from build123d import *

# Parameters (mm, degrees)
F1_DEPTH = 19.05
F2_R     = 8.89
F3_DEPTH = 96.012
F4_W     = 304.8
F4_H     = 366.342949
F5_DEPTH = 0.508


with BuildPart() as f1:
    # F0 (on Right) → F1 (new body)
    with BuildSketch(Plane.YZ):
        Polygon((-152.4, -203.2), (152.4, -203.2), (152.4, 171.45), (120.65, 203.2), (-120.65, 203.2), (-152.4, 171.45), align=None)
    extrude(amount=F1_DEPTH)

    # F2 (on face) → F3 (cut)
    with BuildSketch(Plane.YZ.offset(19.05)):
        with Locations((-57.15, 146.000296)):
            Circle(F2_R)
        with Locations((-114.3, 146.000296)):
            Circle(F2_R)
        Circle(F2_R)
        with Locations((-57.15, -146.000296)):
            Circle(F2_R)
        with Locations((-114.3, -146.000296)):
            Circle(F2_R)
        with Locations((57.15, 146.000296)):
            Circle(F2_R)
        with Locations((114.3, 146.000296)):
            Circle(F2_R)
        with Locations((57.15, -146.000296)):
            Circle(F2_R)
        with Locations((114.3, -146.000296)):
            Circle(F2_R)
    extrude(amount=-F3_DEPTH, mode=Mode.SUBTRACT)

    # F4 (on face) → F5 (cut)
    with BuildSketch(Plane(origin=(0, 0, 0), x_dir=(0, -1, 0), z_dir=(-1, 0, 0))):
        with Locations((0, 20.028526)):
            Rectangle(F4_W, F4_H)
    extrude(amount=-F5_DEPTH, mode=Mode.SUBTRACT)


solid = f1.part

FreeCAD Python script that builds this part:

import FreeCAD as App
import Part
import Sketcher
from FreeCAD import Vector
Q = App.Units.Quantity

doc = App.newDocument("Part")
body = doc.addObject("PartDesign::Body", "Body")

# Sketch on YZ plane
sketch1 = body.newObject("Sketcher::SketchObject", "Sketch")
sketch1.AttachmentSupport = (doc.getObject("YZ_Plane"), [""])
sketch1.MapMode = "FlatFace"
sketch1.addGeometry([
    Part.LineSegment(Vector(-152.4, -203.2, 0), Vector(152.4, -203.2, 0)),  # 0
    Part.LineSegment(Vector(152.4, -203.2, 0), Vector(152.4, 171.45, 0)),  # 1
    Part.LineSegment(Vector(152.4, 171.45, 0), Vector(120.65, 203.2, 0)),  # 2
    Part.LineSegment(Vector(120.65, 203.2, 0), Vector(-120.65, 203.2, 0)),  # 3
    Part.LineSegment(Vector(-120.65, 203.2, 0), Vector(-152.4, 171.45, 0)),  # 4
    Part.LineSegment(Vector(-152.4, 171.45, 0), Vector(-152.4, -203.2, 0)),  # 5
], False)
sketch1.addConstraint([
    Sketcher.Constraint("Coincident", 0, 2, 1, 1),
    Sketcher.Constraint("Coincident", 1, 2, 2, 1),
    Sketcher.Constraint("Coincident", 2, 2, 3, 1),
    Sketcher.Constraint("Coincident", 3, 2, 4, 1),
    Sketcher.Constraint("Coincident", 4, 2, 5, 1),
    Sketcher.Constraint("Coincident", 5, 2, 0, 1),
    Sketcher.Constraint("Horizontal", 0),
    Sketcher.Constraint("Vertical", 1),
    Sketcher.Constraint("Horizontal", 3),
    Sketcher.Constraint("Vertical", 5),
    Sketcher.Constraint("Symmetric", 1, 2, 4, 2, -2),
    Sketcher.Constraint("Perpendicular", 2, 4),
    Sketcher.Constraint("Equal", 2, 4),
    Sketcher.Constraint("DistanceX", 0, 1, 0, 2, Q("12 in")),
    Sketcher.Constraint("DistanceX", 3, 2, 3, 1, Q("9.5 in")),
    Sketcher.Constraint("DistanceY", 0, 2, -1, 1, Q("8 in")),
    Sketcher.Constraint("DistanceY", -1, 1, 2, 2, Q("8 in")),
])
pad1 = body.newObject("PartDesign::Pad", "Pad")
pad1.Profile = sketch1
pad1.Length = Q("0.75 in")

# Sketch on YZ plane
sketch2 = body.newObject("Sketcher::SketchObject", "Sketch001")
sketch2.AttachmentSupport = (doc.getObject("YZ_Plane"), [""])
sketch2.MapMode = "FlatFace"
sketch2.AttachmentOffset = App.Placement(Vector(0, 0, 0.75 * 25.4), App.Rotation())
sketch2.addGeometry([
    Part.Circle(Vector(-57.15, 146.000296, 0), Vector(0, 0, 1), 8.89),  # 0
    Part.Circle(Vector(-114.3, 146.000296, 0), Vector(0, 0, 1), 8.89),  # 1
    Part.Circle(Vector(0, 0, 0), Vector(0, 0, 1), 8.89),  # 2
    Part.Circle(Vector(-57.15, -146.000296, 0), Vector(0, 0, 1), 8.89),  # 3
    Part.Circle(Vector(-114.3, -146.000296, 0), Vector(0, 0, 1), 8.89),  # 4
    Part.Circle(Vector(57.15, 146.000296, 0), Vector(0, 0, 1), 8.89),  # 5
    Part.Circle(Vector(114.3, 146.000296, 0), Vector(0, 0, 1), 8.89),  # 6
    Part.Circle(Vector(57.15, -146.000296, 0), Vector(0, 0, 1), 8.89),  # 7
    Part.Circle(Vector(114.3, -146.000296, 0), Vector(0, 0, 1), 8.89),  # 8
], False)
sketch2.addConstraint([
    Sketcher.Constraint("Coincident", 2, 3, -1, 1),
    Sketcher.Constraint("Equal", 0, 1),
    Sketcher.Constraint("Equal", 1, 2),
    Sketcher.Constraint("Equal", 2, 3),
    Sketcher.Constraint("Equal", 3, 4),
    Sketcher.Constraint("Equal", 4, 5),
    Sketcher.Constraint("Equal", 5, 6),
    Sketcher.Constraint("Equal", 6, 7),
    Sketcher.Constraint("Equal", 7, 8),
    Sketcher.Constraint("Symmetric", 3, 3, 5, 3, -1, 1),
    Sketcher.Constraint("Symmetric", 4, 3, 6, 3, -1, 1),
    Sketcher.Constraint("Symmetric", 0, 3, 7, 3, -1, 1),
    Sketcher.Constraint("Symmetric", 1, 3, 8, 3, -1, 1),
    Sketcher.Constraint("Symmetric", 0, 3, 5, 3, -2),
    Sketcher.Constraint("Symmetric", 1, 3, 6, 3, -2),
    Sketcher.Constraint("Horizontal", 0, 3, 1, 3),
    Sketcher.Constraint("Diameter", 0, Q("0.7 in")),
    Sketcher.Constraint("DistanceX", 1, 3, 6, 3, Q("9 in")),
    Sketcher.Constraint("DistanceX", 0, 3, 5, 3, Q("4.5 in")),
    Sketcher.Constraint("DistanceY", 3, 3, 0, 3, 292.000592),
])
pocket1 = body.newObject("PartDesign::Pocket", "Pocket")
pocket1.Profile = sketch2
pocket1.Length = Q("3.78 in")

# Sketch on YZ plane
sketch3 = body.newObject("Sketcher::SketchObject", "Sketch002")
sketch3.AttachmentSupport = (doc.getObject("YZ_Plane"), [""])
sketch3.MapMode = "FlatFace"
sketch3.addGeometry([
    Part.LineSegment(Vector(152.4, 203.2, 0), Vector(152.4, -163.142948, 0)),
    Part.LineSegment(Vector(152.4, -163.142948, 0), Vector(-152.4, -163.142948, 0)),
    Part.LineSegment(Vector(-152.4, -163.142948, 0), Vector(-152.4, 203.2, 0)),
    Part.LineSegment(Vector(-152.4, 203.2, 0), Vector(152.4, 203.2, 0)),
], False)
sketch3.addConstraint([
    Sketcher.Constraint("Coincident", 0, 2, 1, 1),
    Sketcher.Constraint("Coincident", 1, 2, 2, 1),
    Sketcher.Constraint("Coincident", 2, 2, 3, 1),
    Sketcher.Constraint("Coincident", 3, 2, 0, 1),
    Sketcher.Constraint("Vertical", 0),
    Sketcher.Constraint("Horizontal", 1),
    Sketcher.Constraint("Vertical", 2),
    Sketcher.Constraint("Horizontal", 3),
    Sketcher.Constraint("DistanceX", 1, 2, 1, 1, Q("12 in")),
    Sketcher.Constraint("DistanceX", -1, 1, 0, 2, Q("6 in")),
    Sketcher.Constraint("DistanceY", -1, 1, 2, 2, Q("8 in")),
    Sketcher.Constraint("DistanceY", 0, 2, 0, 1, 366.342949),
])
pocket2 = body.newObject("PartDesign::Pocket", "Pocket001")
pocket2.Profile = sketch3
pocket2.Length = Q("0.02 in")
pocket2.Reversed = True

doc.recompute()
